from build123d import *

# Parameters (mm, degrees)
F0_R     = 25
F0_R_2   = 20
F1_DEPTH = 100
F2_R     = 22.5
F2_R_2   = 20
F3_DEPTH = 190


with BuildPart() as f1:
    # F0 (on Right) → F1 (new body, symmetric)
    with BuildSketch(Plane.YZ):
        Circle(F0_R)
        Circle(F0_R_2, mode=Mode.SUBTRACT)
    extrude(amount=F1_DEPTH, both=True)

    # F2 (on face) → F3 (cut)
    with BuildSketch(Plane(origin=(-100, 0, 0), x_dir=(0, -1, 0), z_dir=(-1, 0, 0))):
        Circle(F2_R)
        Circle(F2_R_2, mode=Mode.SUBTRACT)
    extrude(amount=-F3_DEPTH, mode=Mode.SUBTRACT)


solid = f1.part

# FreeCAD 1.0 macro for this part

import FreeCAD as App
import Part
import Sketcher
from FreeCAD import Vector

doc = App.newDocument("Part")
body = doc.addObject("PartDesign::Body", "Body")

# Sketch on YZ plane
sketch1 = body.newObject("Sketcher::SketchObject", "Sketch")
sketch1.AttachmentSupport = (doc.getObject("YZ_Plane"), [""])
sketch1.MapMode = "FlatFace"
sketch1.addGeometry([
    Part.Circle(Vector(0, 0, 0), Vector(0, 0, 1), 25),
    Part.Circle(Vector(0, 0, 0), Vector(0, 0, 1), 20),
], False)
sketch1.addConstraint([
    Sketcher.Constraint("Coincident", 0, 3, -1, 1),
    Sketcher.Constraint("Coincident", 1, 3, -1, 1),
    Sketcher.Constraint("Diameter", 0, 50.0),
    Sketcher.Constraint("Diameter", 1, 40.0),
])
pad1 = body.newObject("PartDesign::Pad", "Pad")
pad1.Profile = sketch1
pad1.Length = 200
pad1.Midplane = True

# Sketch on YZ plane
sketch2 = body.newObject("Sketcher::SketchObject", "Sketch001")
sketch2.AttachmentSupport = (doc.getObject("YZ_Plane"), [""])
sketch2.MapMode = "FlatFace"
sketch2.AttachmentOffset = App.Placement(Vector(0, 0, -100), App.Rotation())
sketch2.addGeometry([
    Part.Circle(Vector(0, 0, 0), Vector(0, 0, 1), 22),
    Part.Circle(Vector(0, 0, 0), Vector(0, 0, 1), 20),
], False)
sketch2.addConstraint([
    Sketcher.Constraint("Coincident", 0, 3, -1, 1),
    Sketcher.Constraint("Coincident", 1, 3, -1, 1),
    Sketcher.Constraint("Diameter", 0, 45.0),
    Sketcher.Constraint("Diameter", 1, 40.0),
])
pocket1 = body.newObject("PartDesign::Pocket", "Pocket")
pocket1.Profile = sketch2
pocket1.Length = 190
pocket1.Reversed = True

doc.recompute()
